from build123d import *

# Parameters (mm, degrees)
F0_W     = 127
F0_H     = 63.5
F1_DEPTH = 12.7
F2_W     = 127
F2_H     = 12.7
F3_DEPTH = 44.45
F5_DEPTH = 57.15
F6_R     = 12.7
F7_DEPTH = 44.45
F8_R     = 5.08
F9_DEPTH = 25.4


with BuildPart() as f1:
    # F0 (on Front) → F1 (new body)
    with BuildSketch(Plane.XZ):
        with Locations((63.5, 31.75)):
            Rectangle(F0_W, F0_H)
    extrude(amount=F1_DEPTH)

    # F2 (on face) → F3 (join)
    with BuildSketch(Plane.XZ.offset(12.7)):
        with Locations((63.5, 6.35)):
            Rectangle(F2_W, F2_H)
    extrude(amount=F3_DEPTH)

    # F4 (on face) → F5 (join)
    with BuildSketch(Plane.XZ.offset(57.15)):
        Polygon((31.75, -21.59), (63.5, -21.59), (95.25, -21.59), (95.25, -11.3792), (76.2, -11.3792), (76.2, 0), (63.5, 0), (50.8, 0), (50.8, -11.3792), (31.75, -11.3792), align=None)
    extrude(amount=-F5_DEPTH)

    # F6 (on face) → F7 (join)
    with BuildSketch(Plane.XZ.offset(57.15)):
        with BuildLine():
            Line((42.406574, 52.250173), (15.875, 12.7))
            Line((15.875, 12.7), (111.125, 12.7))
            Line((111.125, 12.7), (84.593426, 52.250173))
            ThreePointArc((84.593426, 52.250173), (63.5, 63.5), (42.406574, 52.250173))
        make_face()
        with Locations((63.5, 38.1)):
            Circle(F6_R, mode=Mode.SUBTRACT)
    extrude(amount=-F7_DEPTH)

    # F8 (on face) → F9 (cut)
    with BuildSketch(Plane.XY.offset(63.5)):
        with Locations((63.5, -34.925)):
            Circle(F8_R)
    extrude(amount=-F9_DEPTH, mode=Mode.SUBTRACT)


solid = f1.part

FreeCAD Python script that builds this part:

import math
import FreeCAD as App
import Part
import Sketcher
from FreeCAD import Vector
Q = App.Units.Quantity

doc = App.newDocument("Part")
body = doc.addObject("PartDesign::Body", "Body")

# Sketch on XZ plane
sketch1 = body.newObject("Sketcher::SketchObject", "Sketch")
sketch1.AttachmentSupport = (doc.getObject("XZ_Plane"), [""])
sketch1.MapMode = "FlatFace"
sketch1.addGeometry(Part.LineSegment(Vector(0, 63.5, 0), Vector(0, 0, 0)), False)
sketch1.addGeometry(Part.LineSegment(Vector(0, 0, 0), Vector(127, 0, 0)), False)
sketch1.addGeometry(Part.LineSegment(Vector(127, 0, 0), Vector(127, 63.5, 0)), False)
sketch1.addGeometry(Part.LineSegment(Vector(127, 63.5, 0), Vector(0, 63.5, 0)), False)
sketch1.addConstraint(Sketcher.Constraint("Coincident", 0, 2, 1, 1))
sketch1.addConstraint(Sketcher.Constraint("Coincident", 1, 2, 2, 1))
sketch1.addConstraint(Sketcher.Constraint("Coincident", 2, 2, 3, 1))
sketch1.addConstraint(Sketcher.Constraint("Coincident", 3, 2, 0, 1))
sketch1.addConstraint(Sketcher.Constraint("Vertical", 0))
sketch1.addConstraint(Sketcher.Constraint("Horizontal", 1))
sketch1.addConstraint(Sketcher.Constraint("Vertical", 2))
sketch1.addConstraint(Sketcher.Constraint("Horizontal", 3))
sketch1.addConstraint(Sketcher.Constraint("Coincident", 0, 2, -1, 1))
sketch1.addConstraint(Sketcher.Constraint("DistanceX", 1, 1, 1, 2, Q("5 in")))
sketch1.addConstraint(Sketcher.Constraint("DistanceY", 0, 2, 0, 1, Q("2.5 in")))
pad1 = body.newObject("PartDesign::Pad", "Pad")
pad1.Profile = sketch1
pad1.Length = Q("0.5 in")

# Sketch on XZ plane
sketch2 = body.newObject("Sketcher::SketchObject", "Sketch001")
sketch2.AttachmentSupport = (doc.getObject("XZ_Plane"), [""])
sketch2.MapMode = "FlatFace"
sketch2.AttachmentOffset = App.Placement(Vector(0, 0, 0.5 * 25.4), App.Rotation())
sketch2.addGeometry(Part.LineSegment(Vector(0, 12.7, 0), Vector(0, 0, 0)), False)
sketch2.addGeometry(Part.LineSegment(Vector(0, 0, 0), Vector(127, 0, 0)), False)
sketch2.addGeometry(Part.LineSegment(Vector(127, 0, 0), Vector(127, 12.7, 0)), False)
sketch2.addGeometry(Part.LineSegment(Vector(127, 12.7, 0), Vector(0, 12.7, 0)), False)
sketch2.addConstraint(Sketcher.Constraint("Coincident", 0, 2, 1, 1))
sketch2.addConstraint(Sketcher.Constraint("Coincident", 1, 2, 2, 1))
sketch2.addConstraint(Sketcher.Constraint("Coincident", 2, 2, 3, 1))
sketch2.addConstraint(Sketcher.Constraint("Coincident", 3, 2, 0, 1))
sketch2.addConstraint(Sketcher.Constraint("Vertical", 0))
sketch2.addConstraint(Sketcher.Constraint("Horizontal", 1))
sketch2.addConstraint(Sketcher.Constraint("Vertical", 2))
sketch2.addConstraint(Sketcher.Constraint("Horizontal", 3))
sketch2.addConstraint(Sketcher.Constraint("Coincident", 0, 2, -1, 1))
sketch2.addConstraint(Sketcher.Constraint("DistanceX", 1, 1, 1, 2, Q("5 in")))
sketch2.addConstraint(Sketcher.Constraint("DistanceY", 0, 2, 0, 1, Q("0.5 in")))
pad2 = body.newObject("PartDesign::Pad", "Pad001")
pad2.Profile = sketch2
pad2.Length = Q("1.75 in")

# Sketch on XZ plane
sketch3 = body.newObject("Sketcher::SketchObject", "Sketch002")
sketch3.AttachmentSupport = (doc.getObject("XZ_Plane"), [""])
sketch3.MapMode = "FlatFace"
sketch3.AttachmentOffset = App.Placement(Vector(0, 0, 2.25 * 25.4), App.Rotation())
sketch3.addGeometry(Part.LineSegment(Vector(31.75, -21.59, 0), Vector(95.25, -21.59, 0)), False)
sketch3.addGeometry(Part.LineSegment(Vector(95.25, -21.59, 0), Vector(95.25, -11.3792, 0)), False)
sketch3.addGeometry(Part.LineSegment(Vector(95.25, -11.3792, 0), Vector(76.2, -11.3792, 0)), False)
sketch3.addGeometry(Part.LineSegment(Vector(76.2, -11.3792, 0), Vector(76.2, 0, 0)), False)
sketch3.addGeometry(Part.LineSegment(Vector(76.2, 0, 0), Vector(50.8, 0, 0)), False)
sketch3.addGeometry(Part.LineSegment(Vector(50.8, 0, 0), Vector(50.8, -11.3792, 0)), False)
sketch3.addGeometry(Part.LineSegment(Vector(50.8, -11.3792, 0), Vector(31.75, -11.3792, 0)), False)
sketch3.addGeometry(Part.LineSegment(Vector(31.75, -11.3792, 0), Vector(31.75, -21.59, 0)), False)
sketch3.addConstraint(Sketcher.Constraint("Coincident", 0, 2, 1, 1))
sketch3.addConstraint(Sketcher.Constraint("Coincident", 1, 2, 2, 1))
sketch3.addConstraint(Sketcher.Constraint("Coincident", 2, 2, 3, 1))
sketch3.addConstraint(Sketcher.Constraint("Coincident", 3, 2, 4, 1))
sketch3.addConstraint(Sketcher.Constraint("Coincident", 4, 2, 5, 1))
sketch3.addConstraint(Sketcher.Constraint("Coincident", 5, 2, 6, 1))
sketch3.addConstraint(Sketcher.Constraint("Coincident", 6, 2, 7, 1))
sketch3.addConstraint(Sketcher.Constraint("Coincident", 7, 2, 0, 1))
sketch3.addConstraint(Sketcher.Constraint("Horizontal", 0))
sketch3.addConstraint(Sketcher.Constraint("Vertical", 1))
sketch3.addConstraint(Sketcher.Constraint("Horizontal", 2))
sketch3.addConstraint(Sketcher.Constraint("Vertical", 3))
sketch3.addConstraint(Sketcher.Constraint("Horizontal", 4))
sketch3.addConstraint(Sketcher.Constraint("Vertical", 5))
sketch3.addConstraint(Sketcher.Constraint("Horizontal", 6))
sketch3.addConstraint(Sketcher.Constraint("Vertical", 7))
sketch3.addConstraint(Sketcher.Constraint("PointOnObject", 3, 2, -1))
sketch3.addConstraint(Sketcher.Constraint("Horizontal", 2, 2, 5, 2))
sketch3.addConstraint(Sketcher.Constraint("Equal", 2, 6))
sketch3.addConstraint(Sketcher.Constraint("DistanceX", 4, 2, 4, 1, Q("1 in")))
sketch3.addConstraint(Sketcher.Constraint("DistanceX", 0, 1, 0, 2, Q("2.5 in")))
sketch3.addConstraint(Sketcher.Constraint("DistanceX", -1, 1, 2, 2, Q("3 in")))
sketch3.addConstraint(Sketcher.Constraint("DistanceY", 1, 1, 1, 2, Q("0.402 in")))
sketch3.addConstraint(Sketcher.Constraint("DistanceY", 3, 1, 3, 2, Q("0.448 in")))
pad3 = body.newObject("PartDesign::Pad", "Pad002")
pad3.Profile = sketch3
pad3.Length = Q("2.25 in")
pad3.Reversed = True

# Sketch on XZ plane
sketch4 = body.newObject("Sketcher::SketchObject", "Sketch003")
sketch4.AttachmentSupport = (doc.getObject("XZ_Plane"), [""])
sketch4.MapMode = "FlatFace"
sketch4.AttachmentOffset = App.Placement(Vector(0, 0, 2.25 * 25.4), App.Rotation())
sketch4.addGeometry(Part.LineSegment(Vector(42.406574, 52.250173, 0), Vector(15.875, 12.7, 0)), False)
sketch4.addGeometry(Part.LineSegment(Vector(15.875, 12.7, 0), Vector(111.125, 12.7, 0)), False)
sketch4.addGeometry(Part.LineSegment(Vector(111.125, 12.7, 0), Vector(84.593426, 52.250173, 0)), False)
sketch4.addGeometry(Part.ArcOfCircle(Part.Circle(Vector(63.5, 38.099999, 0), Vector(0, 0, 1), 25.400001), math.radians(33.855027), math.radians(146.144973)), False)
sketch4.addGeometry(Part.Circle(Vector(63.5, 38.1, 0), Vector(0, 0, 1), 12.7), False)
sketch4.addConstraint(Sketcher.Constraint("Coincident", 0, 2, 1, 1))
sketch4.addConstraint(Sketcher.Constraint("Coincident", 1, 2, 2, 1))
sketch4.addConstraint(Sketcher.Constraint("Tangent", 2, 2, 3, 1))
sketch4.addConstraint(Sketcher.Constraint("Tangent", 3, 2, 0, 1))
sketch4.addConstraint(Sketcher.Constraint("Horizontal", 1))
sketch4.addConstraint(Sketcher.Constraint("Coincident", 4, 3, 3, 3))
sketch4.addConstraint(Sketcher.Constraint("Horizontal", 2, 2, 3, 2))
sketch4.addConstraint(Sketcher.Constraint("Diameter", 4, Q("1 in")))
sketch4.addConstraint(Sketcher.Constraint("Radius", 3, Q("1 in")))
sketch4.addConstraint(Sketcher.Constraint("DistanceY", 0, 2, 3, 3, Q("1 in")))
sketch4.addConstraint(Sketcher.Constraint("DistanceX", 1, 1, 1, 2, Q("3.75 in")))
sketch4.addConstraint(Sketcher.Constraint("DistanceX", -1, 1, 3, 3, Q("2.5 in")))
sketch4.addConstraint(Sketcher.Constraint("DistanceY", -1, 1, 3, 3, Q("1.5 in")))
pad4 = body.newObject("PartDesign::Pad", "Pad003")
pad4.Profile = sketch4
pad4.Length = Q("1.75 in")
pad4.Reversed = True

# Sketch on XY plane
sketch5 = body.newObject("Sketcher::SketchObject", "Sketch004")
sketch5.AttachmentSupport = (doc.getObject("XY_Plane"), [""])
sketch5.MapMode = "FlatFace"
sketch5.AttachmentOffset = App.Placement(Vector(0, 0, 2.5 * 25.4), App.Rotation())
sketch5.addGeometry(Part.Circle(Vector(63.5, -34.925, 0), Vector(0, 0, 1), 5.08), False)
sketch5.addConstraint(Sketcher.Constraint("Diameter", 0, Q("0.4 in")))
sketch5.addConstraint(Sketcher.Constraint("DistanceX", -1, 1, 0, 3, Q("2.5 in")))
sketch5.addConstraint(Sketcher.Constraint("DistanceY", 0, 3, -1, 1, Q("1.375 in")))
pocket1 = body.newObject("PartDesign::Pocket", "Pocket")
pocket1.Profile = sketch5
pocket1.Length = Q("1 in")

doc.recompute()
